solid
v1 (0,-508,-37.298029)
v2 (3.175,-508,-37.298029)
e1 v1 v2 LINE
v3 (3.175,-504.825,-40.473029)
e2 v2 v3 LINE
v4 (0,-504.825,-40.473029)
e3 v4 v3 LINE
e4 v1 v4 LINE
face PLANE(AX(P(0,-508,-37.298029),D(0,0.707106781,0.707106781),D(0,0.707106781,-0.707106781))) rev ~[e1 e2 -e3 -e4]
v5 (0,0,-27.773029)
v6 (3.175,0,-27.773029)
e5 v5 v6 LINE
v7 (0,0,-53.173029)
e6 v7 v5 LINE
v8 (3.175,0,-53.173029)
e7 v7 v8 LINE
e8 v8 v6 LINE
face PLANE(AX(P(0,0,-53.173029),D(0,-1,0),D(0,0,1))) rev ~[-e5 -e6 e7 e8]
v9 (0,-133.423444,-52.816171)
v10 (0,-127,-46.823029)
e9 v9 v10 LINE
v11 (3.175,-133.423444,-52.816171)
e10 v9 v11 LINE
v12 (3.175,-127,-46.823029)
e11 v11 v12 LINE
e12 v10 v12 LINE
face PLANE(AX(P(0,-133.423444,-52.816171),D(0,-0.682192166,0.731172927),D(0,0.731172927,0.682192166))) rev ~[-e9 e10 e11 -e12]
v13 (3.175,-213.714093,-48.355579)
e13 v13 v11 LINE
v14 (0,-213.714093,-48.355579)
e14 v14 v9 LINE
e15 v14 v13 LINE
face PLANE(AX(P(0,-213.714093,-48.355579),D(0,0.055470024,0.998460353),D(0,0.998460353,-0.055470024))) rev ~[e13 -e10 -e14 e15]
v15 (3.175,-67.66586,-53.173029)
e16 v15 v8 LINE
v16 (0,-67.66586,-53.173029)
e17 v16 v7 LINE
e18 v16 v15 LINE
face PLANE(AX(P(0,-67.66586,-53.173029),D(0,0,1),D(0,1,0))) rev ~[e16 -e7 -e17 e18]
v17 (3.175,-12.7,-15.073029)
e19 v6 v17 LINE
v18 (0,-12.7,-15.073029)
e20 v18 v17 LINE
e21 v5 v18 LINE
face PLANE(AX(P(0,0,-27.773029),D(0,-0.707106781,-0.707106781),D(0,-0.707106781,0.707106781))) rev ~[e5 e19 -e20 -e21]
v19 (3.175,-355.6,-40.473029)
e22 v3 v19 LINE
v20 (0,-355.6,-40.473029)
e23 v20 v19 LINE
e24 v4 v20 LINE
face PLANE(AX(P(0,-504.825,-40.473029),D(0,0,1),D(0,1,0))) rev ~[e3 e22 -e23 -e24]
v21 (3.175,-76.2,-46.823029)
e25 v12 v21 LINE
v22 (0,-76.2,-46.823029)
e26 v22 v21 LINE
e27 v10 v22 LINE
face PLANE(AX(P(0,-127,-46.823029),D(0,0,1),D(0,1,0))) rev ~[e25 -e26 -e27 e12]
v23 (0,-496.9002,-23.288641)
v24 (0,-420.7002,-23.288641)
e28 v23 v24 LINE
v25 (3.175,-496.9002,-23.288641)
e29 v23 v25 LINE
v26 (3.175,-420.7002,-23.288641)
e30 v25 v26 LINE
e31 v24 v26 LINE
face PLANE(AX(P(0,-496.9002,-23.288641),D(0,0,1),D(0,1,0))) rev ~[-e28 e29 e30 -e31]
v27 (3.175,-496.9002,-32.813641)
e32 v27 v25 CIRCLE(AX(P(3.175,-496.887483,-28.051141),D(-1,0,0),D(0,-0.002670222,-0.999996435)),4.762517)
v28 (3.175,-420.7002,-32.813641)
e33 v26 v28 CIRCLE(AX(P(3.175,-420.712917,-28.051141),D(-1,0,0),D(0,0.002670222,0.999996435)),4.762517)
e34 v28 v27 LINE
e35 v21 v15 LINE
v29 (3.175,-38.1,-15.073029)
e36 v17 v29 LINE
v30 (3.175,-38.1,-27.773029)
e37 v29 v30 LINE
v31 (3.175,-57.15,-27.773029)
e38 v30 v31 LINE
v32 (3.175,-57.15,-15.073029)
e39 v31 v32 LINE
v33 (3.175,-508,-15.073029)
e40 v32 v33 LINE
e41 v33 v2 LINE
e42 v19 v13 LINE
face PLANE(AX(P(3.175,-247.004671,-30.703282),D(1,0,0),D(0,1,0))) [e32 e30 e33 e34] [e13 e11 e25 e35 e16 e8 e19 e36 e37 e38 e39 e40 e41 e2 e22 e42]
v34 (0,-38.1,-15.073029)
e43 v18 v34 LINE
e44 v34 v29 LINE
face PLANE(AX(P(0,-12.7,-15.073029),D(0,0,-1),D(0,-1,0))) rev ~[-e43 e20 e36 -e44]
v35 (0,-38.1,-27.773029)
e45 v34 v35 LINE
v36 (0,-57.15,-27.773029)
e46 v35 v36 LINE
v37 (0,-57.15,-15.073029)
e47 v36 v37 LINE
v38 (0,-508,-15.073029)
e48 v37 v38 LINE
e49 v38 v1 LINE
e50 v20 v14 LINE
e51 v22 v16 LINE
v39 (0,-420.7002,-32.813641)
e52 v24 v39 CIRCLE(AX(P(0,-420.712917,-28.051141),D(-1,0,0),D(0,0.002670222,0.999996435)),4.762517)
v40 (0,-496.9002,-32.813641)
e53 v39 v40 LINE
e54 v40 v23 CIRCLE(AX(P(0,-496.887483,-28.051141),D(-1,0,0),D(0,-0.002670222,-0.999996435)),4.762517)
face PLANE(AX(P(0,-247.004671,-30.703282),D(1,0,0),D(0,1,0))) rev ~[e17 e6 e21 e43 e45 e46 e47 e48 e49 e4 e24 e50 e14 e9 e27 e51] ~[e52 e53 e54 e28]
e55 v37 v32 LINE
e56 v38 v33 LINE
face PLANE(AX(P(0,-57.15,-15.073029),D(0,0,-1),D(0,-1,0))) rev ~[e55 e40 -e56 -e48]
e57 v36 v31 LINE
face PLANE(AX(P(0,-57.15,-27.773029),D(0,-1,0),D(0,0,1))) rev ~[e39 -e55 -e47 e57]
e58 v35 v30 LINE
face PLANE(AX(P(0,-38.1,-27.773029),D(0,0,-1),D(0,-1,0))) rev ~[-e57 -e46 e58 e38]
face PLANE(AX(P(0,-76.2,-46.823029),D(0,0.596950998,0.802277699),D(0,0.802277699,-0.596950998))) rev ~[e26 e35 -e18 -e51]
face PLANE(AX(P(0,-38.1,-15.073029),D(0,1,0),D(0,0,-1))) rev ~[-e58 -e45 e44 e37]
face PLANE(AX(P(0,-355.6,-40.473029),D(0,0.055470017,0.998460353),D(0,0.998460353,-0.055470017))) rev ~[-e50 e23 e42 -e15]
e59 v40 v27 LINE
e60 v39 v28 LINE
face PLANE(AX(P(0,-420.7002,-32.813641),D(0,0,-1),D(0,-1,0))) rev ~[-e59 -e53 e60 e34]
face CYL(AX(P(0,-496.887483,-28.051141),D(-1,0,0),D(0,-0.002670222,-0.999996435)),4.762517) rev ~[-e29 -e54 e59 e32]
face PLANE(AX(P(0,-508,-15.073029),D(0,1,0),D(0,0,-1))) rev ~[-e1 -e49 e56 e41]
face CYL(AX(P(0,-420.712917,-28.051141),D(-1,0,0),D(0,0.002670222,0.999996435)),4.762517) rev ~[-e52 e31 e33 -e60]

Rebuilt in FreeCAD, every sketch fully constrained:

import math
import FreeCAD as App
import Part
import Sketcher
Q = App.Units.Quantity

doc = App.newDocument("Part")
body = doc.addObject("PartDesign::Body", "Body")

# Sketch on YZ plane
sketch1 = body.newObject("Sketcher::SketchObject", "Sketch")
sketch1.AttachmentSupport = (doc.getObject("YZ_Plane"), [""])
sketch1.MapMode = "FlatFace"
sketch1.addGeometry([
    Part.LineSegment(App.Vector(0, -53.173029, 0), App.Vector(0, -27.773029, 0)),  # 0
    Part.LineSegment(App.Vector(0, -27.773029, 0), App.Vector(-12.7, -15.073029, 0)),  # 1
    Part.LineSegment(App.Vector(-12.7, -15.073029, 0), App.Vector(-38.1, -15.073029, 0)),  # 2
    Part.LineSegment(App.Vector(-38.1, -15.073029, 0), App.Vector(-38.1, -27.773029, 0)),  # 3
    Part.LineSegment(App.Vector(-38.1, -27.773029, 0), App.Vector(-57.15, -27.773029, 0)),  # 4
    Part.LineSegment(App.Vector(-57.15, -27.773029, 0), App.Vector(-57.15, -15.073029, 0)),  # 5
    Part.LineSegment(App.Vector(-57.15, -15.073029, 0), App.Vector(-508, -15.073029, 0)),  # 6
    Part.LineSegment(App.Vector(-508, -15.073029, 0), App.Vector(-508, -37.298029, 0)),  # 7
    Part.LineSegment(App.Vector(-508, -37.298029, 0), App.Vector(-504.825, -40.473029, 0)),  # 8
    Part.LineSegment(App.Vector(-504.825, -40.473029, 0), App.Vector(-355.6, -40.473029, 0)),  # 9
    Part.LineSegment(App.Vector(-355.6, -40.473029, 0), App.Vector(-213.714093, -48.355579, 0)),  # 10
    Part.LineSegment(App.Vector(-213.714093, -48.355579, 0), App.Vector(-133.423444, -52.816171, 0)),  # 11
    Part.LineSegment(App.Vector(-133.423444, -52.816171, 0), App.Vector(-127, -46.823029, 0)),  # 12
    Part.LineSegment(App.Vector(-127, -46.823029, 0), App.Vector(-76.2, -46.823029, 0)),  # 13
    Part.LineSegment(App.Vector(-76.2, -46.823029, 0), App.Vector(-67.66586, -53.173029, 0)),  # 14
    Part.LineSegment(App.Vector(-67.66586, -53.173029, 0), App.Vector(0, -53.173029, 0)),  # 15
    Part.LineSegment(App.Vector(-420.7002, -32.813641, 0), App.Vector(-496.9002, -32.813641, 0)),  # 16
    Part.ArcOfCircle(Part.Circle(App.Vector(-496.887483, -28.051141, 0), App.Vector(0, 0, 1), 4.762517), math.radians(90.152993), math.radians(269.847007)),  # 17
    Part.LineSegment(App.Vector(-496.9002, -23.288641, 0), App.Vector(-420.7002, -23.288641, 0)),  # 18
    Part.ArcOfCircle(Part.Circle(App.Vector(-420.712917, -28.051141, 0), App.Vector(0, 0, 1), 4.762517), math.radians(-89.847007), math.radians(89.847007)),  # 19
], False)
sketch1.addConstraint([
    Sketcher.Constraint("Coincident", 0, 2, 1, 1),
    Sketcher.Constraint("Coincident", 1, 2, 2, 1),
    Sketcher.Constraint("Coincident", 2, 2, 3, 1),
    Sketcher.Constraint("Coincident", 3, 2, 4, 1),
    Sketcher.Constraint("Coincident", 4, 2, 5, 1),
    Sketcher.Constraint("Coincident", 5, 2, 6, 1),
    Sketcher.Constraint("Coincident", 6, 2, 7, 1),
    Sketcher.Constraint("Coincident", 7, 2, 8, 1),
    Sketcher.Constraint("Coincident", 8, 2, 9, 1),
    Sketcher.Constraint("Coincident", 9, 2, 10, 1),
    Sketcher.Constraint("Coincident", 10, 2, 11, 1),
    Sketcher.Constraint("Coincident", 11, 2, 12, 1),
    Sketcher.Constraint("Coincident", 12, 2, 13, 1),
    Sketcher.Constraint("Coincident", 13, 2, 14, 1),
    Sketcher.Constraint("Coincident", 14, 2, 15, 1),
    Sketcher.Constraint("Coincident", 15, 2, 0, 1),
    Sketcher.Constraint("Coincident", 16, 2, 17, 2),
    Sketcher.Constraint("Coincident", 17, 1, 18, 1),
    Sketcher.Constraint("Coincident", 18, 2, 19, 2),
    Sketcher.Constraint("Coincident", 19, 1, 16, 1),
    Sketcher.Constraint("Vertical", 0),
    Sketcher.Constraint("Horizontal", 2),
    Sketcher.Constraint("Vertical", 3),
    Sketcher.Constraint("Horizontal", 4),
    Sketcher.Constraint("Vertical", 5),
    Sketcher.Constraint("Horizontal", 6),
    Sketcher.Constraint("Vertical", 7),
    Sketcher.Constraint("Horizontal", 9),
    Sketcher.Constraint("Horizontal", 13),
    Sketcher.Constraint("Horizontal", 15),
    Sketcher.Constraint("Horizontal", 16),
    Sketcher.Constraint("Horizontal", 18),
    Sketcher.Constraint("Equal", 17, 19),
    Sketcher.Constraint("PointOnObject", 0, 2, -2),
    Sketcher.Constraint("Parallel", 1, 8),
    Sketcher.Constraint("Parallel", 10, 11),
    Sketcher.Constraint("Horizontal", 0, 2, 3, 2),
    Sketcher.Constraint("Horizontal", 2, 2, 5, 2),
    Sketcher.Constraint("Vertical", 16, 2, 17, 1),
    Sketcher.Constraint("Vertical", 18, 2, 19, 1),
    Sketcher.Constraint("Equal", 2, 0),
    Sketcher.Constraint("DistanceX", 2, 2, 2, 1, Q("1 in")),
    Sketcher.Constraint("DistanceX", 13, 1, 13, 2, Q("2 in")),
    Sketcher.Constraint("DistanceX", 16, 2, 16, 1, Q("3 in")),
    Sketcher.Constraint("DistanceY", 3, 2, 3, 1, Q("0.5 in")),
    Sketcher.Constraint("DistanceX", 6, 2, -1, 1, Q("20 in")),
    Sketcher.Constraint("DistanceX", 9, 2, -1, 1, Q("14 in")),
    Sketcher.Constraint("DistanceX", 12, 2, -1, 1, Q("5 in")),
    Sketcher.Constraint("Angle", 1, Q("135 deg")),
    Sketcher.Constraint("DistanceY", 8, 2, 6, 2, Q("1 in")),
    Sketcher.Constraint("DistanceX", 4, 2, 4, 1, Q("0.75 in")),
    Sketcher.Constraint("DistanceX", 9, 1, 9, 2, Q("5.875 in")),
    Sketcher.Constraint("DistanceY", 12, 2, 4, 2, Q("0.75 in")),
    Sketcher.Constraint("DistanceX", 16, 2, -1, 1, Q("19.563 in")),
    Sketcher.Constraint("DistanceY", 16, 2, 17, 3, Q("0.1875 in")),
    Sketcher.Constraint("Distance", 10, 142.104698),
    Sketcher.Constraint("DistanceX", 15, 1, 15, 2, 67.66586),
    Sketcher.Constraint("Distance", 11, 80.414459),
    Sketcher.Constraint("DistanceY", 17, 3, -1, 1, 28.051141),
    Sketcher.Constraint("DistanceY", 0, 2, -1, 1, 27.773029),
    Sketcher.Constraint("DistanceY", 10, 2, -1, 1, 48.355579),
    Sketcher.Constraint("DistanceX", 17, 3, -1, 1, 496.887483),
])
pad1 = body.newObject("PartDesign::Pad", "Pad")
pad1.Profile = sketch1
pad1.Length = Q("0.125 in")

doc.recompute()
